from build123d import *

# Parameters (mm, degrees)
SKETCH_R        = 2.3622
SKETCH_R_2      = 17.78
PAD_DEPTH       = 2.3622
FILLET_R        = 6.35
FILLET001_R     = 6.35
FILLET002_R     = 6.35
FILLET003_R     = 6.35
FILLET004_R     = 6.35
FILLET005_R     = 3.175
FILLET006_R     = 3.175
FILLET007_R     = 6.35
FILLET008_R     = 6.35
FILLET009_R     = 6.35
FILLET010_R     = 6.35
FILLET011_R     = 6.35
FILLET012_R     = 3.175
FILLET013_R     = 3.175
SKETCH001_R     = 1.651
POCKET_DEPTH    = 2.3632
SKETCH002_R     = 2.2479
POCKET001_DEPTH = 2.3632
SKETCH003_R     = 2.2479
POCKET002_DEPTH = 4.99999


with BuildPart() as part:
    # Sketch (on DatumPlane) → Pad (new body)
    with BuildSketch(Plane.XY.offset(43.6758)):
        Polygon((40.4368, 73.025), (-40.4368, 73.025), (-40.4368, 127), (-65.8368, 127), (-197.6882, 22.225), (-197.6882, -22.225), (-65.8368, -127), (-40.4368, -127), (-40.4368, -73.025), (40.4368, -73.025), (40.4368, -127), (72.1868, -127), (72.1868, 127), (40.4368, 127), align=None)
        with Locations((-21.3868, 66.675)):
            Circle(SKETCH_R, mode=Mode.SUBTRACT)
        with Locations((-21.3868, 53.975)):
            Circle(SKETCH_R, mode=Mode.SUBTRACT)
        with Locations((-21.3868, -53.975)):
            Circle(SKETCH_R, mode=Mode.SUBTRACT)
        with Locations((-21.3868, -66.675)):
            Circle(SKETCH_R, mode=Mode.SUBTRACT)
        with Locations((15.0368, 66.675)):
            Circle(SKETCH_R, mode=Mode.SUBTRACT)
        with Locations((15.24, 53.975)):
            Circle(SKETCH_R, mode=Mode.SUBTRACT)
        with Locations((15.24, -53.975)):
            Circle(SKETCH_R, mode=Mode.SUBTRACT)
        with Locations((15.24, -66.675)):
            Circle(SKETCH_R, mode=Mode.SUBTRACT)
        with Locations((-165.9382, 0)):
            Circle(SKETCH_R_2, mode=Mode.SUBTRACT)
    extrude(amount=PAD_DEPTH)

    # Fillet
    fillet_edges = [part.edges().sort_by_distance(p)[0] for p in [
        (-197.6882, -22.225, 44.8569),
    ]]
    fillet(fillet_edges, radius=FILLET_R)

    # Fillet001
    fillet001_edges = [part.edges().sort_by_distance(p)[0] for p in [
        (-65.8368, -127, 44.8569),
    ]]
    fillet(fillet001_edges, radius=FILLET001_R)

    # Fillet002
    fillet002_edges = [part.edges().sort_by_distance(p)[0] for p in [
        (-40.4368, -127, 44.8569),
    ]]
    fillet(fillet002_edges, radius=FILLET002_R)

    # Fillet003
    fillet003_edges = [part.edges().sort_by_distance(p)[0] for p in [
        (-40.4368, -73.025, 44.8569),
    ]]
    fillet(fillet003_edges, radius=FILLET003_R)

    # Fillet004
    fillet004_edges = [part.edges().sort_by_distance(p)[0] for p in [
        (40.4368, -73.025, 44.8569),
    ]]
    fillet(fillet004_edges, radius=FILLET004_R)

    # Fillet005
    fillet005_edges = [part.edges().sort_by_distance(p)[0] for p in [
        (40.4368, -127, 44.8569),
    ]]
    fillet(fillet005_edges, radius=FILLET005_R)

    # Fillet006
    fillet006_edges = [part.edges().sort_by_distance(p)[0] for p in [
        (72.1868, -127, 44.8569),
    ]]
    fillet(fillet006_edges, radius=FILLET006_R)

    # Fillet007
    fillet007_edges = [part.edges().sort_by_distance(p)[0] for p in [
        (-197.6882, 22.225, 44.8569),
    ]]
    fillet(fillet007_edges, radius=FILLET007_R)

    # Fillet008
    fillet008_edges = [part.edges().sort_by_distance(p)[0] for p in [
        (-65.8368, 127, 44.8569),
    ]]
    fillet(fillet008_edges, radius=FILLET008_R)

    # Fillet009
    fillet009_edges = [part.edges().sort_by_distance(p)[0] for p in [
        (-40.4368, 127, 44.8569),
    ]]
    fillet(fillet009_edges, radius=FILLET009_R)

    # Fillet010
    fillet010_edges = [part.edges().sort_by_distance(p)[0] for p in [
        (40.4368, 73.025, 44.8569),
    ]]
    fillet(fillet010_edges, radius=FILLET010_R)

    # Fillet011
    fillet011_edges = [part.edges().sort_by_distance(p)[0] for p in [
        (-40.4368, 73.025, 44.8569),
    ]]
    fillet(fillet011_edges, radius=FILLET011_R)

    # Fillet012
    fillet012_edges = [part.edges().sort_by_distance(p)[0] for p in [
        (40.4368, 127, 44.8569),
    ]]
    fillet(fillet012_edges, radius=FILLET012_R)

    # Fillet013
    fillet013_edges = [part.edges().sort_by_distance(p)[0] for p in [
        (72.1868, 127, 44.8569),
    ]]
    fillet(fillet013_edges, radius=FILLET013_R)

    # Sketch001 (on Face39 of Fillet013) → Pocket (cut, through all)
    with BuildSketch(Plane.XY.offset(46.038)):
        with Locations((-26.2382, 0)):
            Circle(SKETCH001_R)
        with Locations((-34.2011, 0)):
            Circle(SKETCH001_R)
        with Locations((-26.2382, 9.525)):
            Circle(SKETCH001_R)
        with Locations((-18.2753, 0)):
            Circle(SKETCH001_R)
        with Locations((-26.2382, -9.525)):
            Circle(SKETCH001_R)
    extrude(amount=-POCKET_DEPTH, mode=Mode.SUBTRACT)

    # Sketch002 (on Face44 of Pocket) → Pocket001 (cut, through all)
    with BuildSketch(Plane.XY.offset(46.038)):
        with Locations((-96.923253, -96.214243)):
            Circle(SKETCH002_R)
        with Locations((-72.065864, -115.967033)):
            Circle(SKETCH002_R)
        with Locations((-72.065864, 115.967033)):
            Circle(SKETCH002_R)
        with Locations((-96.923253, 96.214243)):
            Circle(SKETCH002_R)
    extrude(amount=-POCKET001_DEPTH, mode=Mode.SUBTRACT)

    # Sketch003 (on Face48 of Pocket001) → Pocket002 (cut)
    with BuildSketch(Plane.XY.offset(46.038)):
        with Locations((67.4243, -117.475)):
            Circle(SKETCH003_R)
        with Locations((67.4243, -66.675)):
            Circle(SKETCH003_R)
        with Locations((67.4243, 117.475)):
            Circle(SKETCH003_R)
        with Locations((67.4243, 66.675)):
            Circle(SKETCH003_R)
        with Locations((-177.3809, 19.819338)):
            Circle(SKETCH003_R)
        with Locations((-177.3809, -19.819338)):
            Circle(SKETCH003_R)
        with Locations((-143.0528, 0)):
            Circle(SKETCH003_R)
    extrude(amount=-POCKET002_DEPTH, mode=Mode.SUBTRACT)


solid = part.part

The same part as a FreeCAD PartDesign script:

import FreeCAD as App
import Part
import Sketcher

V = App.Vector
Q = App.Units.Quantity


def edges_at(feature, points):
    """Names of the edges that pass closest to the given points."""
    edges = feature.Shape.Edges
    near = lambda p: min(range(len(edges)), key=lambda i: edges[i].distToShape(Part.Vertex(*p))[0])
    return sorted({f"Edge{near(p) + 1}" for p in points})


def add_polygon(sketch, points):
    """Adds a closed chain of lines whose ends are joined by coincident constraints."""
    first, n = sketch.GeometryCount, len(points)
    for a, b in zip(points, points[1:] + points[:1]):
        sketch.addGeometry(Part.LineSegment(App.Vector(*a, 0), App.Vector(*b, 0)), False)
    for i in range(n):
        sketch.addConstraint(Sketcher.Constraint("Coincident", first + i, 2, first + (i + 1) % n, 1))

doc = App.newDocument("Part")
body = doc.addObject("PartDesign::Body", "Body")

sketch1 = body.newObject("Sketcher::SketchObject", "Sketch")
sketch1.AttachmentSupport = (doc.getObject("XY_Plane"), [""])
sketch1.MapMode = "FlatFace"
sketch1.AttachmentOffset = App.Placement(V(0, 0, 43.6758), App.Rotation())
add_polygon(sketch1, [(40.4, 73), (-40.4, 73), (-40.4, 127), (-65.8, 127), (-197.7, 22.2), (-197.7, -22.2), (-65.8, -127), (-40.4, -127), (-40.4, -73), (40.4, -73), (40.4, -127), (72.2, -127), (72.2, 127), (40.4, 127)])
sketch1.addGeometry(Part.Circle(V(-21.4, -66.7, 0), V(0, 0, 1), 2.4), False)
sketch1.addGeometry(Part.Circle(V(-21.4, -54, 0), V(0, 0, 1), 2.4), False)
sketch1.addGeometry(Part.Circle(V(15.2, -66.7, 0), V(0, 0, 1), 2.4), False)
sketch1.addGeometry(Part.Circle(V(15.2, -54, 0), V(0, 0, 1), 2.4), False)
sketch1.addGeometry(Part.Circle(V(-165.9, 0, 0), V(0, 0, 1), 17.8), False)
sketch1.addGeometry(Part.Circle(V(-21.4, 54, 0), V(0, 0, 1), 2.4), False)
sketch1.addGeometry(Part.Circle(V(-21.4, 66.7, 0), V(0, 0, 1), 2.4), False)
sketch1.addGeometry(Part.Circle(V(15.2, 54, 0), V(0, 0, 1), 2.4), False)
sketch1.addGeometry(Part.Circle(V(15, 66.7, 0), V(0, 0, 1), 2.4), False)
sketch1.addConstraint([
    Sketcher.Constraint("Horizontal", 0),
    Sketcher.Constraint("Vertical", 1),
    Sketcher.Constraint("Horizontal", 2),
    Sketcher.Constraint("Vertical", 4),
    Sketcher.Constraint("Horizontal", 6),
    Sketcher.Constraint("Vertical", 7),
    Sketcher.Constraint("Horizontal", 8),
    Sketcher.Constraint("Vertical", 9),
    Sketcher.Constraint("Horizontal", 10),
    Sketcher.Constraint("Vertical", 11),
    Sketcher.Constraint("Horizontal", 12),
    Sketcher.Constraint("Vertical", 13),
    Sketcher.Constraint("Equal", 14, 15),
    Sketcher.Constraint("Equal", 15, 16),
    Sketcher.Constraint("Equal", 16, 17),
    Sketcher.Constraint("Equal", 17, 19),
    Sketcher.Constraint("Equal", 19, 20),
    Sketcher.Constraint("Equal", 20, 21),
    Sketcher.Constraint("Equal", 21, 22),
    Sketcher.Constraint("Symmetric", 0, 2, 8, 2, -1, 1),
    Sketcher.Constraint("Symmetric", 6, 2, 12, 2, -1, 1),
    Sketcher.Constraint("Symmetric", 6, 2, 9, 2, -2),
    Sketcher.Constraint("Symmetric", 15, 3, 19, 3, -1),
    Sketcher.Constraint("Symmetric", 14, 3, 20, 3, -1),
    Sketcher.Constraint("Symmetric", 17, 3, 21, 3, -1),
    Sketcher.Constraint("Symmetric", 2, 2, 5, 2, -1),
    Sketcher.Constraint("PointOnObject", 18, 3, -1),
    Sketcher.Constraint("Horizontal", 14, 3, 16, 3),
    Sketcher.Constraint("Horizontal", 15, 3, 17, 3),
    Sketcher.Constraint("Horizontal", 20, 3, 22, 3),
    Sketcher.Constraint("Vertical", 14, 3, 15, 3),
    Sketcher.Constraint("Vertical", 16, 3, 17, 3),
    Sketcher.Constraint("Equal", 3, 5),
    Sketcher.Constraint("Diameter", 18, Q("1.4 in")),
    Sketcher.Constraint("DistanceX", 2, 2, 2, 1, Q("1 in")),
    Sketcher.Constraint("DistanceY", 11, 1, 11, 2, Q("10 in")),
    Sketcher.Constraint("Diameter", 14, Q("0.186 in")),
    Sketcher.Constraint("DistanceY", 15, 3, 0, 2, Q("5 in")),
    Sketcher.Constraint("DistanceY", 3, 2, 0, 2, Q("2 in")),
    Sketcher.Constraint("DistanceX", 22, 3, 12, 2, Q("1 in")),
    Sketcher.Constraint("DistanceX", 10, 1, 10, 2, Q("1.25 in")),
    Sketcher.Constraint("DistanceY", 4, 2, 4, 1, Q("1.75 in")),
    Sketcher.Constraint("DistanceX", -1, 1, 16, 3, Q("0.6 in")),
    Sketcher.Constraint("DistanceY", 14, 3, 15, 3, Q("0.5 in")),
    Sketcher.Constraint("DistanceX", 0, 2, 0, 1, Q("3.184 in")),
    Sketcher.Constraint("DistanceX", 0, 2, 20, 3, Q("0.75 in")),
    Sketcher.Constraint("DistanceX", 3, 2, 18, 3, Q("1.25 in")),
    Sketcher.Constraint("DistanceX", 18, 3, -1, 1, Q("6.533 in")),
])
pad1 = body.newObject("PartDesign::Pad", "Pad")
pad1.Profile = sketch1
pad1.Length = Q("0.093 in")
doc.recompute()

fillet = body.newObject("PartDesign::Fillet", "Fillet")
fillet.Base = (pad1, edges_at(pad1, [(-197.688, -22.225, 44.857)]))
fillet.Radius = Q("0.25 in")
doc.recompute()

fillet2 = body.newObject("PartDesign::Fillet", "Fillet001")
fillet2.Base = (fillet, edges_at(fillet, [(-65.837, -127, 44.857)]))
fillet2.Radius = Q("0.25 in")
doc.recompute()

fillet3 = body.newObject("PartDesign::Fillet", "Fillet002")
fillet3.Base = (fillet2, edges_at(fillet2, [(-40.437, -127, 44.857)]))
fillet3.Radius = Q("0.25 in")
doc.recompute()

fillet4 = body.newObject("PartDesign::Fillet", "Fillet003")
fillet4.Base = (fillet3, edges_at(fillet3, [(-40.437, -73.025, 44.857)]))
fillet4.Radius = Q("0.25 in")
doc.recompute()

fillet5 = body.newObject("PartDesign::Fillet", "Fillet004")
fillet5.Base = (fillet4, edges_at(fillet4, [(40.437, -73.025, 44.857)]))
fillet5.Radius = Q("0.25 in")
doc.recompute()

fillet6 = body.newObject("PartDesign::Fillet", "Fillet005")
fillet6.Base = (fillet5, edges_at(fillet5, [(40.437, -127, 44.857)]))
fillet6.Radius = Q("0.125 in")
doc.recompute()

fillet7 = body.newObject("PartDesign::Fillet", "Fillet006")
fillet7.Base = (fillet6, edges_at(fillet6, [(72.187, -127, 44.857)]))
fillet7.Radius = Q("0.125 in")
doc.recompute()

fillet8 = body.newObject("PartDesign::Fillet", "Fillet007")
fillet8.Base = (fillet7, edges_at(fillet7, [(-197.688, 22.225, 44.857)]))
fillet8.Radius = Q("0.25 in")
doc.recompute()

fillet9 = body.newObject("PartDesign::Fillet", "Fillet008")
fillet9.Base = (fillet8, edges_at(fillet8, [(-65.837, 127, 44.857)]))
fillet9.Radius = Q("0.25 in")
doc.recompute()

fillet10 = body.newObject("PartDesign::Fillet", "Fillet009")
fillet10.Base = (fillet9, edges_at(fillet9, [(-40.437, 127, 44.857)]))
fillet10.Radius = Q("0.25 in")
doc.recompute()

fillet11 = body.newObject("PartDesign::Fillet", "Fillet010")
fillet11.Base = (fillet10, edges_at(fillet10, [(40.437, 73.025, 44.857)]))
fillet11.Radius = Q("0.25 in")
doc.recompute()

fillet12 = body.newObject("PartDesign::Fillet", "Fillet011")
fillet12.Base = (fillet11, edges_at(fillet11, [(-40.437, 73.025, 44.857)]))
fillet12.Radius = Q("0.25 in")
doc.recompute()

fillet13 = body.newObject("PartDesign::Fillet", "Fillet012")
fillet13.Base = (fillet12, edges_at(fillet12, [(40.437, 127, 44.857)]))
fillet13.Radius = Q("0.125 in")
doc.recompute()

fillet14 = body.newObject("PartDesign::Fillet", "Fillet013")
fillet14.Base = (fillet13, edges_at(fillet13, [(72.187, 127, 44.857)]))
fillet14.Radius = Q("0.125 in")

sketch2 = body.newObject("Sketcher::SketchObject", "Sketch001")
sketch2.AttachmentSupport = (doc.getObject("XY_Plane"), [""])
sketch2.MapMode = "FlatFace"
sketch2.AttachmentOffset = App.Placement(V(0, 0, 46.038), App.Rotation())
sketch2.addGeometry([
    Part.Circle(V(-26.2, 0, 0), V(0, 0, 1), 1.7),
    Part.Circle(V(-34.2, 0, 0), V(0, 0, 1), 1.7),
    Part.Circle(V(-26.2, 9.5, 0), V(0, 0, 1), 1.7),
    Part.Circle(V(-18.3, 0, 0), V(0, 0, 1), 1.7),
    Part.Circle(V(-26.2, -9.5, 0), V(0, 0, 1), 1.7),
], False)
sketch2.addConstraint([
    Sketcher.Constraint("Equal", 0, 1),
    Sketcher.Constraint("Equal", 1, 2),
    Sketcher.Constraint("Equal", 2, 3),
    Sketcher.Constraint("Equal", 3, 4),
    Sketcher.Constraint("Symmetric", 2, 3, 4, 3, -1),
    Sketcher.Constraint("PointOnObject", 0, 3, -1),
    Sketcher.Constraint("PointOnObject", 1, 3, -1),
    Sketcher.Constraint("PointOnObject", 3, 3, -1),
    Sketcher.Constraint("Vertical", 0, 3, 2, 3),
    Sketcher.Constraint("Diameter", 0, Q("0.13 in")),
    Sketcher.Constraint("DistanceY", 4, 3, 2, 3, Q("0.75 in")),
    Sketcher.Constraint("DistanceX", 0, 3, -1, 1, Q("1.033 in")),
    Sketcher.Constraint("DistanceX", 1, 3, 3, 3, Q("0.627 in")),
    Sketcher.Constraint("DistanceX", 1, 3, -1, 1, Q("1.3465 in")),
])
pocket1 = body.newObject("PartDesign::Pocket", "Pocket")
pocket1.Profile = sketch2
pocket1.Type = "ThroughAll"

sketch3 = body.newObject("Sketcher::SketchObject", "Sketch002")
sketch3.AttachmentSupport = (doc.getObject("XY_Plane"), [""])
sketch3.MapMode = "FlatFace"
sketch3.AttachmentOffset = App.Placement(V(0, 0, 46.038), App.Rotation())
sketch3.addGeometry([
    Part.Circle(V(-96.9, -96.2, 0), V(0, 0, 1), 2.2),
    Part.Circle(V(-72.1, -116, 0), V(0, 0, 1), 2.2),
    Part.Circle(V(-72.1, 116, 0), V(0, 0, 1), 2.2),
    Part.Circle(V(-96.9, 96.2, 0), V(0, 0, 1), 2.2),
], False)
sketch3.addConstraint([
    Sketcher.Constraint("Equal", 0, 1),
    Sketcher.Constraint("Equal", 1, 2),
    Sketcher.Constraint("Equal", 2, 3),
    Sketcher.Constraint("Symmetric", 1, 3, 2, 3, -1),
    Sketcher.Constraint("Symmetric", 0, 3, 3, 3, -1),
    Sketcher.Constraint("Diameter", 0, Q("0.177 in")),
    Sketcher.Constraint("DistanceX", 0, 3, 1, 3, 24.857389),
    Sketcher.Constraint("DistanceY", 1, 3, 0, 3, 19.75279),
    Sketcher.Constraint("DistanceX", 0, 3, -1, 1, 96.923253),
    Sketcher.Constraint("DistanceY", 0, 3, -1, 1, 96.214243),
])
pocket2 = body.newObject("PartDesign::Pocket", "Pocket001")
pocket2.Profile = sketch3
pocket2.Type = "ThroughAll"

sketch4 = body.newObject("Sketcher::SketchObject", "Sketch003")
sketch4.AttachmentSupport = (doc.getObject("XY_Plane"), [""])
sketch4.MapMode = "FlatFace"
sketch4.AttachmentOffset = App.Placement(V(0, 0, 46.038), App.Rotation())
sketch4.addGeometry([
    Part.Circle(V(67.4, -117.5, 0), V(0, 0, 1), 2.2),
    Part.Circle(V(67.4, -66.7, 0), V(0, 0, 1), 2.2),
    Part.Circle(V(67.4, 117.5, 0), V(0, 0, 1), 2.2),
    Part.Circle(V(67.4, 66.7, 0), V(0, 0, 1), 2.2),
    Part.Circle(V(-177.4, 19.8, 0), V(0, 0, 1), 2.2),
    Part.Circle(V(-177.4, -19.8, 0), V(0, 0, 1), 2.2),
    Part.Circle(V(-143.1, 0, 0), V(0, 0, 1), 2.2),
], False)
sketch4.addConstraint([
    Sketcher.Constraint("Equal", 0, 1),
    Sketcher.Constraint("Equal", 1, 2),
    Sketcher.Constraint("Equal", 2, 3),
    Sketcher.Constraint("Equal", 3, 4),
    Sketcher.Constraint("Equal", 4, 5),
    Sketcher.Constraint("Equal", 5, 6),
    Sketcher.Constraint("Symmetric", 0, 3, 2, 3, -1),
    Sketcher.Constraint("Symmetric", 1, 3, 3, 3, -1),
    Sketcher.Constraint("Symmetric", 4, 3, 5, 3, -1),
    Sketcher.Constraint("PointOnObject", 6, 3, -1),
    Sketcher.Constraint("Vertical", 0, 3, 1, 3),
    Sketcher.Constraint("Diameter", 0, Q("0.177 in")),
    Sketcher.Constraint("DistanceY", 0, 3, 1, 3, Q("2 in")),
    Sketcher.Constraint("DistanceY", 1, 3, 2, 3, Q("7.25 in")),
    Sketcher.Constraint("DistanceX", 6, 3, -1, 1, Q("5.632 in")),
    Sketcher.Constraint("DistanceX", 4, 3, 3, 3, Q("9.638 in")),
    Sketcher.Constraint("DistanceX", -1, 1, 0, 3, Q("2.6545 in")),
    Sketcher.Constraint("DistanceY", 4, 3, 3, 3, 46.855662),
])
pocket3 = body.newObject("PartDesign::Pocket", "Pocket002")
pocket3.Profile = sketch4
pocket3.Length = 4.99999

doc.recompute()
